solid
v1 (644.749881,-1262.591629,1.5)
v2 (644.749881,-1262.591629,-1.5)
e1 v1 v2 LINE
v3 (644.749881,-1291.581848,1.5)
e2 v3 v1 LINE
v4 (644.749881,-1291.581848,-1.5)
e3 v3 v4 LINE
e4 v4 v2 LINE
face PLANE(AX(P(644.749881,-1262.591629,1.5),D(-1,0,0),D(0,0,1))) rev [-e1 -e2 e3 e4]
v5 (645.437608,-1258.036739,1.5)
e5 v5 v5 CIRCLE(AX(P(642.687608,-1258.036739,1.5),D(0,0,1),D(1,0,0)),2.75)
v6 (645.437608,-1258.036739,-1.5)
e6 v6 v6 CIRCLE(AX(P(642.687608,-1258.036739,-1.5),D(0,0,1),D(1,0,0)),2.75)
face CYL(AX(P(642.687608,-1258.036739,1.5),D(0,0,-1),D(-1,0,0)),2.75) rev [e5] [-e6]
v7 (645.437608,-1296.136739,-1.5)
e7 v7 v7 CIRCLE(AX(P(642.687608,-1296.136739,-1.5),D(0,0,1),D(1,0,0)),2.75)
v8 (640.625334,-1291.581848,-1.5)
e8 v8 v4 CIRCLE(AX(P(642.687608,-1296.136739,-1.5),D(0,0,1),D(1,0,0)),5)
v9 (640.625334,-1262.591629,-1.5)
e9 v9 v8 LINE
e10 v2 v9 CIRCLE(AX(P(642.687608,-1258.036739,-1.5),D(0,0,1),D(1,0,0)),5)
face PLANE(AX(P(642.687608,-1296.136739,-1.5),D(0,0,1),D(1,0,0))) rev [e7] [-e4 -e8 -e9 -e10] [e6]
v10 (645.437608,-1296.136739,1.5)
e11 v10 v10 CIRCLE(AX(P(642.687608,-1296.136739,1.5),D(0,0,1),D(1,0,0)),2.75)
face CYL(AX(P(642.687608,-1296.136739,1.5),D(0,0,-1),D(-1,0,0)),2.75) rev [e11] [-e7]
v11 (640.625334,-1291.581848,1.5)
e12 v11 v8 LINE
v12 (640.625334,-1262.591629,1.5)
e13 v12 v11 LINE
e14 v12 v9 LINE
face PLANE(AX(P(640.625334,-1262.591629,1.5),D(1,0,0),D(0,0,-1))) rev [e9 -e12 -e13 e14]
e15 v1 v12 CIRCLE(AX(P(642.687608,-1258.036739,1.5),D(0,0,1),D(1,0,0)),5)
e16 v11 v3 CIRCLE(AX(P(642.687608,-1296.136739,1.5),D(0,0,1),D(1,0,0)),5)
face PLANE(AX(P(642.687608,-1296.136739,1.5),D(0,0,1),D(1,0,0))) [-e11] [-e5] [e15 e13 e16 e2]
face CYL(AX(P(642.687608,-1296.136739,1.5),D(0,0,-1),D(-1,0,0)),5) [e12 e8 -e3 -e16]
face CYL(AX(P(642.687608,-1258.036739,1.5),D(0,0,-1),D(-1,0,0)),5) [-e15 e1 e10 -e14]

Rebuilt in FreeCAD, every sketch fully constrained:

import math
import FreeCAD as App
import Part
import Sketcher

V = App.Vector

doc = App.newDocument("Part")
body = doc.addObject("PartDesign::Body", "Body")

sketch1 = body.newObject("Sketcher::SketchObject", "Sketch")
sketch1.AttachmentSupport = (doc.getObject("XY_Plane"), [""])
sketch1.MapMode = "FlatFace"
sketch1.addGeometry(Part.LineSegment(V(644.7, -1291.6, 0), V(644.7, -1262.6, 0)), False)
sketch1.addGeometry(Part.ArcOfCircle(Part.Circle(V(642.7, -1258, 0), V(0, 0, 1), 5), math.radians(-66), math.radians(246)), False)
sketch1.addGeometry(Part.LineSegment(V(640.6, -1262.6, 0), V(640.6, -1291.6, 0)), False)
sketch1.addGeometry(Part.ArcOfCircle(Part.Circle(V(642.7, -1296.1, 0), V(0, 0, 1), 5), math.radians(114), math.radians(426)), False)
sketch1.addGeometry(Part.Circle(V(642.7, -1296.1, 0), V(0, 0, 1), 2.8), False)
sketch1.addGeometry(Part.Circle(V(642.7, -1258, 0), V(0, 0, 1), 2.8), False)
sketch1.addConstraint(Sketcher.Constraint("Coincident", 0, 2, 1, 1))
sketch1.addConstraint(Sketcher.Constraint("Coincident", 1, 2, 2, 1))
sketch1.addConstraint(Sketcher.Constraint("Coincident", 2, 2, 3, 1))
sketch1.addConstraint(Sketcher.Constraint("Coincident", 3, 2, 0, 1))
sketch1.addConstraint(Sketcher.Constraint("Vertical", 0))
sketch1.addConstraint(Sketcher.Constraint("Vertical", 2))
sketch1.addConstraint(Sketcher.Constraint("Coincident", 4, 3, 3, 3))
sketch1.addConstraint(Sketcher.Constraint("Coincident", 5, 3, 1, 3))
sketch1.addConstraint(Sketcher.Constraint("Equal", 1, 3))
sketch1.addConstraint(Sketcher.Constraint("Equal", 4, 5))
sketch1.addConstraint(Sketcher.Constraint("Horizontal", 0, 2, 1, 2))
sketch1.addConstraint(Sketcher.Constraint("Horizontal", 2, 2, 3, 2))
sketch1.addConstraint(Sketcher.Constraint("Radius", 1, 5.0))
sketch1.addConstraint(Sketcher.Constraint("Diameter", 4, 5.5))
sketch1.addConstraint(Sketcher.Constraint("DistanceY", 3, 3, 1, 3, 38.1))
sketch1.addConstraint(Sketcher.Constraint("DistanceY", 0, 1, 0, 2, 28.990219))
sketch1.addConstraint(Sketcher.Constraint("DistanceY", 1, 3, -1, 1, 1258.036739))
sketch1.addConstraint(Sketcher.Constraint("DistanceX", -1, 1, 0, 2, 644.749881))
pad1 = body.newObject("PartDesign::Pad", "Pad")
pad1.Profile = sketch1
pad1.Length = 3
pad1.Midplane = True

doc.recompute()
